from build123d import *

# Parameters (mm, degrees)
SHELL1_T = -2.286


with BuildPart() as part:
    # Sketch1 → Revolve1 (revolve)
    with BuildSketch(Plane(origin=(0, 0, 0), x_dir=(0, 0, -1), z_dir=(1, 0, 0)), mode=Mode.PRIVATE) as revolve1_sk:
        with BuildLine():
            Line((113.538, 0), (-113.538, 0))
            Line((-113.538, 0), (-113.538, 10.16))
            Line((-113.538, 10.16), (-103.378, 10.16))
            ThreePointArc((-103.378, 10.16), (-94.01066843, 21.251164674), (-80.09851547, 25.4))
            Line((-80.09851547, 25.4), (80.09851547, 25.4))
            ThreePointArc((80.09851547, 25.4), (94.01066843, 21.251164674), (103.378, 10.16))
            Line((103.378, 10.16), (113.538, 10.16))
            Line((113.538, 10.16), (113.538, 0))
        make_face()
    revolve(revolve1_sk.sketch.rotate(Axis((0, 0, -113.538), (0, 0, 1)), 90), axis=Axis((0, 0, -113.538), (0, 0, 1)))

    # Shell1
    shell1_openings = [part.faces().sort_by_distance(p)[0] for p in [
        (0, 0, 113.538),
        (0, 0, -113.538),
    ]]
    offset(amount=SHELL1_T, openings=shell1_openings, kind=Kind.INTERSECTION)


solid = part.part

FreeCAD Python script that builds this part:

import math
import FreeCAD as App
import Part
import Sketcher
from FreeCAD import Vector
Q = App.Units.Quantity


def faces_at(feature, points):
    """Names of the faces that lie closest to the given points."""
    faces = feature.Shape.Faces
    near = lambda p: min(range(len(faces)), key=lambda i: faces[i].distToShape(Part.Vertex(*p))[0])
    return sorted({f"Face{near(p) + 1}" for p in points})

doc = App.newDocument("Part")
body = doc.addObject("PartDesign::Body", "Body")

sketch1 = body.newObject("Sketcher::SketchObject", "Sketch")
sketch1.AttachmentSupport = (doc.getObject("YZ_Plane"), [""])
sketch1.MapMode = "FlatFace"
sketch1.addGeometry([
    Part.LineSegment(Vector(0, 114, 0), Vector(0, -114, 0)),
    Part.LineSegment(Vector(0, -114, 0), Vector(10, -114, 0)),
    Part.LineSegment(Vector(10, -114, 0), Vector(10, -103, 0)),
    Part.ArcOfCircle(Part.Circle(Vector(0, -80, 0), Vector(0, 0, 1), 25), math.radians(-66), math.radians(0)),
    Part.LineSegment(Vector(25, -80, 0), Vector(25, 80, 0)),
    Part.ArcOfCircle(Part.Circle(Vector(0, 80, 0), Vector(0, 0, 1), 25), math.radians(0), math.radians(66)),
    Part.LineSegment(Vector(10, 103, 0), Vector(10, 114, 0)),
    Part.LineSegment(Vector(10, 114, 0), Vector(0, 114, 0)),
], False)
sketch1.addConstraint([
    Sketcher.Constraint("Coincident", 0, 2, 1, 1),
    Sketcher.Constraint("Coincident", 1, 2, 2, 1),
    Sketcher.Constraint("Coincident", 2, 2, 3, 1),
    Sketcher.Constraint("Tangent", 3, 2, 4, 1),
    Sketcher.Constraint("Tangent", 4, 2, 5, 1),
    Sketcher.Constraint("Coincident", 5, 2, 6, 1),
    Sketcher.Constraint("Coincident", 6, 2, 7, 1),
    Sketcher.Constraint("Coincident", 7, 2, 0, 1),
    Sketcher.Constraint("Vertical", 0),
    Sketcher.Constraint("Horizontal", 1),
    Sketcher.Constraint("Vertical", 2),
    Sketcher.Constraint("Vertical", 4),
    Sketcher.Constraint("Vertical", 6),
    Sketcher.Constraint("Horizontal", 7),
    Sketcher.Constraint("Equal", 3, 5),
    Sketcher.Constraint("Symmetric", 3, 3, 5, 3, -1, 1),
    Sketcher.Constraint("Symmetric", 0, 2, 7, 2, -1, 1),
    Sketcher.Constraint("Vertical", 2, 2, 5, 2),
    Sketcher.Constraint("Equal", 7, 2),
    Sketcher.Constraint("Radius", 3, Q("1 in")),
    Sketcher.Constraint("DistanceX", 1, 1, 1, 2, Q("0.4 in")),
    Sketcher.Constraint("DistanceY", 0, 2, 0, 1, Q("8.94 in")),
])
revolution = body.newObject("PartDesign::Revolution", "Revolution")
revolution.Profile = sketch1
revolution.ReferenceAxis = (sketch1, ["V_Axis"])
revolution.Angle = 360
doc.recompute()

thickness = body.newObject("PartDesign::Thickness", "Thickness")
thickness.Base = (revolution, faces_at(revolution, [(0, 0, 113.538), (0, 0, -113.538)]))
thickness.Value = Q("0.09 in")
thickness.Reversed = True
thickness.Join = "Intersection"

doc.recompute()
